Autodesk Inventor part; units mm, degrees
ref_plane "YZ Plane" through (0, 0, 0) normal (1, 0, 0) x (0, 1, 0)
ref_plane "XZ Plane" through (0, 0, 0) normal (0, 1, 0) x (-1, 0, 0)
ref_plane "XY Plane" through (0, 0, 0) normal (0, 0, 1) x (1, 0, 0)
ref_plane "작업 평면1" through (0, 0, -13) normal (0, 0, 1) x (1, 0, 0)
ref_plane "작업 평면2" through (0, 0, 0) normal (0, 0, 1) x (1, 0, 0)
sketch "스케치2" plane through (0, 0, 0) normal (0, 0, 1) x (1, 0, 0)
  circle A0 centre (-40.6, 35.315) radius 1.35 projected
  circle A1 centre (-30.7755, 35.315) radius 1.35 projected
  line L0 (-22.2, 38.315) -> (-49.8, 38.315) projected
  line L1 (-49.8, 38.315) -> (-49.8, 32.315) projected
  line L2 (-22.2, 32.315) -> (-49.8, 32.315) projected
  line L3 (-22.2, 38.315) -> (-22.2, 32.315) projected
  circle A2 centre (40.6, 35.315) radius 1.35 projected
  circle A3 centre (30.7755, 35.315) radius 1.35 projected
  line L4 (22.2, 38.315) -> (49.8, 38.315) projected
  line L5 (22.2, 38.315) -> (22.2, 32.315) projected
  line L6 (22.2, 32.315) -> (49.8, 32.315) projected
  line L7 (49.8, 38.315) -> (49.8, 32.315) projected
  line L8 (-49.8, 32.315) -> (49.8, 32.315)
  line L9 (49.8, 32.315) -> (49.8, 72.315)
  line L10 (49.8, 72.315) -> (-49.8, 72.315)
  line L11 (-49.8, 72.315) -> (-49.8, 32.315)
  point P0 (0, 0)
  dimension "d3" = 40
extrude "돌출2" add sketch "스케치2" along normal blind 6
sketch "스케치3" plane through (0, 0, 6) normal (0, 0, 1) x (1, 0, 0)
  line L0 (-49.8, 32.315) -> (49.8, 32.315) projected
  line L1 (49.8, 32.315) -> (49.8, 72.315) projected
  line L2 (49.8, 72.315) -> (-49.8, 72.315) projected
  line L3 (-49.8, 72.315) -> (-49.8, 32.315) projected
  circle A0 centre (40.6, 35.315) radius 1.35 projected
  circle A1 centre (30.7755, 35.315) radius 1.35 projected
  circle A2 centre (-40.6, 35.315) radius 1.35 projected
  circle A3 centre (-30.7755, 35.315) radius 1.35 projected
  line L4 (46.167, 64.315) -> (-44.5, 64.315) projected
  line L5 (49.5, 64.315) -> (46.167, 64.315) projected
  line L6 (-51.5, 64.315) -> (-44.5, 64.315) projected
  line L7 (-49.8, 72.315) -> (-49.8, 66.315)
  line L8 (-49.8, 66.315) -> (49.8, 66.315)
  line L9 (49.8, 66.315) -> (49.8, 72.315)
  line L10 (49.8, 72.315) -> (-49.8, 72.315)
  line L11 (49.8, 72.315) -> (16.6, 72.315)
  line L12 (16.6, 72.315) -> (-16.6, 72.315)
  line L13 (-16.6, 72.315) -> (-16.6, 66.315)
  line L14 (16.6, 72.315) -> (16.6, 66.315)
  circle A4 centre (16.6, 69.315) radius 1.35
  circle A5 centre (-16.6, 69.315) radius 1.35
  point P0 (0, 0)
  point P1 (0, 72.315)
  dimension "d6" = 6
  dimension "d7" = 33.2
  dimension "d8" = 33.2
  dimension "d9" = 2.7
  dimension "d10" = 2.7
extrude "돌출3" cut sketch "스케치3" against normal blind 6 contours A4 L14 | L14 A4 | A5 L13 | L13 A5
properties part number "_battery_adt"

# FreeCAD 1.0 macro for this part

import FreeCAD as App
import Part
import Sketcher
Q = App.Units.Quantity

doc = App.newDocument("Part")
body = doc.addObject("PartDesign::Body", "Body")

sketch1 = body.newObject("Sketcher::SketchObject", "Sketch")
sketch1.AttachmentSupport = (doc.getObject("XY_Plane"), [""])
sketch1.MapMode = "FlatFace"
sketch1.addGeometry(Part.LineSegment(App.Vector(-49.8, 32.3, 0), App.Vector(49.8, 32.3, 0)), False)
sketch1.addGeometry(Part.LineSegment(App.Vector(49.8, 32.3, 0), App.Vector(49.8, 72.3, 0)), False)
sketch1.addGeometry(Part.LineSegment(App.Vector(49.8, 72.3, 0), App.Vector(-49.8, 72.3, 0)), False)
sketch1.addGeometry(Part.LineSegment(App.Vector(-49.8, 72.3, 0), App.Vector(-49.8, 32.3, 0)), False)
sketch1.addGeometry(Part.Circle(App.Vector(-40.6, 35.3, 0), App.Vector(0, 0, 1), 1.4), False)
sketch1.addGeometry(Part.Circle(App.Vector(-30.8, 35.3, 0), App.Vector(0, 0, 1), 1.4), False)
sketch1.addGeometry(Part.Circle(App.Vector(30.8, 35.3, 0), App.Vector(0, 0, 1), 1.4), False)
sketch1.addGeometry(Part.Circle(App.Vector(40.6, 35.3, 0), App.Vector(0, 0, 1), 1.4), False)
sketch1.addConstraint(Sketcher.Constraint("Coincident", 0, 2, 1, 1))
sketch1.addConstraint(Sketcher.Constraint("Coincident", 1, 2, 2, 1))
sketch1.addConstraint(Sketcher.Constraint("Coincident", 2, 2, 3, 1))
sketch1.addConstraint(Sketcher.Constraint("Coincident", 3, 2, 0, 1))
sketch1.addConstraint(Sketcher.Constraint("Horizontal", 0))
sketch1.addConstraint(Sketcher.Constraint("Vertical", 1))
sketch1.addConstraint(Sketcher.Constraint("Horizontal", 2))
sketch1.addConstraint(Sketcher.Constraint("Vertical", 3))
sketch1.addConstraint(Sketcher.Constraint("Equal", 4, 5))
sketch1.addConstraint(Sketcher.Constraint("Equal", 5, 6))
sketch1.addConstraint(Sketcher.Constraint("Equal", 6, 7))
sketch1.addConstraint(Sketcher.Constraint("Symmetric", 5, 3, 6, 3, -2))
sketch1.addConstraint(Sketcher.Constraint("Symmetric", 4, 3, 7, 3, -2))
sketch1.addConstraint(Sketcher.Constraint("Horizontal", 4, 3, 5, 3))
sketch1.addConstraint(Sketcher.Constraint("DistanceY", 1, 1, 1, 2, Q("40 mm")))
sketch1.addConstraint(Sketcher.Constraint("Diameter", 4, Q("2.7 mm")))
sketch1.addConstraint(Sketcher.Constraint("DistanceX", 0, 1, 0, 2, Q("99.6 mm")))
sketch1.addConstraint(Sketcher.Constraint("DistanceY", 0, 2, 7, 3, Q("3 mm")))
sketch1.addConstraint(Sketcher.Constraint("DistanceX", 4, 3, -1, 1, Q("40.6 mm")))
sketch1.addConstraint(Sketcher.Constraint("DistanceX", -1, 1, 0, 2, Q("49.8 mm")))
sketch1.addConstraint(Sketcher.Constraint("DistanceY", -1, 1, 4, 3, Q("35.315 mm")))
sketch1.addConstraint(Sketcher.Constraint("DistanceX", 5, 3, 6, 3, Q("61.551 mm")))
pad1 = body.newObject("PartDesign::Pad", "Pad")
pad1.Profile = sketch1
pad1.Length = 6

sketch2 = body.newObject("Sketcher::SketchObject", "Sketch001")
sketch2.AttachmentSupport = (doc.getObject("XY_Plane"), [""])
sketch2.MapMode = "FlatFace"
sketch2.AttachmentOffset = App.Placement(App.Vector(0, 0, 6), App.Rotation())
sketch2.addGeometry(Part.Circle(App.Vector(16.6, 69.3, 0), App.Vector(0, 0, 1), 1.4), False)
sketch2.addGeometry(Part.Circle(App.Vector(-16.6, 69.3, 0), App.Vector(0, 0, 1), 1.4), False)
sketch2.addConstraint(Sketcher.Constraint("Equal", 0, 1))
sketch2.addConstraint(Sketcher.Constraint("Symmetric", 0, 3, 1, 3, -2))
sketch2.addConstraint(Sketcher.Constraint("Diameter", 0, Q("2.7 mm")))
sketch2.addConstraint(Sketcher.Constraint("DistanceX", 1, 3, 0, 3, Q("33.2 mm")))
sketch2.addConstraint(Sketcher.Constraint("DistanceY", -1, 1, 0, 3, Q("69.315 mm")))
pocket1 = body.newObject("PartDesign::Pocket", "Pocket")
pocket1.Profile = sketch2
pocket1.Length = 6

doc.recompute()
